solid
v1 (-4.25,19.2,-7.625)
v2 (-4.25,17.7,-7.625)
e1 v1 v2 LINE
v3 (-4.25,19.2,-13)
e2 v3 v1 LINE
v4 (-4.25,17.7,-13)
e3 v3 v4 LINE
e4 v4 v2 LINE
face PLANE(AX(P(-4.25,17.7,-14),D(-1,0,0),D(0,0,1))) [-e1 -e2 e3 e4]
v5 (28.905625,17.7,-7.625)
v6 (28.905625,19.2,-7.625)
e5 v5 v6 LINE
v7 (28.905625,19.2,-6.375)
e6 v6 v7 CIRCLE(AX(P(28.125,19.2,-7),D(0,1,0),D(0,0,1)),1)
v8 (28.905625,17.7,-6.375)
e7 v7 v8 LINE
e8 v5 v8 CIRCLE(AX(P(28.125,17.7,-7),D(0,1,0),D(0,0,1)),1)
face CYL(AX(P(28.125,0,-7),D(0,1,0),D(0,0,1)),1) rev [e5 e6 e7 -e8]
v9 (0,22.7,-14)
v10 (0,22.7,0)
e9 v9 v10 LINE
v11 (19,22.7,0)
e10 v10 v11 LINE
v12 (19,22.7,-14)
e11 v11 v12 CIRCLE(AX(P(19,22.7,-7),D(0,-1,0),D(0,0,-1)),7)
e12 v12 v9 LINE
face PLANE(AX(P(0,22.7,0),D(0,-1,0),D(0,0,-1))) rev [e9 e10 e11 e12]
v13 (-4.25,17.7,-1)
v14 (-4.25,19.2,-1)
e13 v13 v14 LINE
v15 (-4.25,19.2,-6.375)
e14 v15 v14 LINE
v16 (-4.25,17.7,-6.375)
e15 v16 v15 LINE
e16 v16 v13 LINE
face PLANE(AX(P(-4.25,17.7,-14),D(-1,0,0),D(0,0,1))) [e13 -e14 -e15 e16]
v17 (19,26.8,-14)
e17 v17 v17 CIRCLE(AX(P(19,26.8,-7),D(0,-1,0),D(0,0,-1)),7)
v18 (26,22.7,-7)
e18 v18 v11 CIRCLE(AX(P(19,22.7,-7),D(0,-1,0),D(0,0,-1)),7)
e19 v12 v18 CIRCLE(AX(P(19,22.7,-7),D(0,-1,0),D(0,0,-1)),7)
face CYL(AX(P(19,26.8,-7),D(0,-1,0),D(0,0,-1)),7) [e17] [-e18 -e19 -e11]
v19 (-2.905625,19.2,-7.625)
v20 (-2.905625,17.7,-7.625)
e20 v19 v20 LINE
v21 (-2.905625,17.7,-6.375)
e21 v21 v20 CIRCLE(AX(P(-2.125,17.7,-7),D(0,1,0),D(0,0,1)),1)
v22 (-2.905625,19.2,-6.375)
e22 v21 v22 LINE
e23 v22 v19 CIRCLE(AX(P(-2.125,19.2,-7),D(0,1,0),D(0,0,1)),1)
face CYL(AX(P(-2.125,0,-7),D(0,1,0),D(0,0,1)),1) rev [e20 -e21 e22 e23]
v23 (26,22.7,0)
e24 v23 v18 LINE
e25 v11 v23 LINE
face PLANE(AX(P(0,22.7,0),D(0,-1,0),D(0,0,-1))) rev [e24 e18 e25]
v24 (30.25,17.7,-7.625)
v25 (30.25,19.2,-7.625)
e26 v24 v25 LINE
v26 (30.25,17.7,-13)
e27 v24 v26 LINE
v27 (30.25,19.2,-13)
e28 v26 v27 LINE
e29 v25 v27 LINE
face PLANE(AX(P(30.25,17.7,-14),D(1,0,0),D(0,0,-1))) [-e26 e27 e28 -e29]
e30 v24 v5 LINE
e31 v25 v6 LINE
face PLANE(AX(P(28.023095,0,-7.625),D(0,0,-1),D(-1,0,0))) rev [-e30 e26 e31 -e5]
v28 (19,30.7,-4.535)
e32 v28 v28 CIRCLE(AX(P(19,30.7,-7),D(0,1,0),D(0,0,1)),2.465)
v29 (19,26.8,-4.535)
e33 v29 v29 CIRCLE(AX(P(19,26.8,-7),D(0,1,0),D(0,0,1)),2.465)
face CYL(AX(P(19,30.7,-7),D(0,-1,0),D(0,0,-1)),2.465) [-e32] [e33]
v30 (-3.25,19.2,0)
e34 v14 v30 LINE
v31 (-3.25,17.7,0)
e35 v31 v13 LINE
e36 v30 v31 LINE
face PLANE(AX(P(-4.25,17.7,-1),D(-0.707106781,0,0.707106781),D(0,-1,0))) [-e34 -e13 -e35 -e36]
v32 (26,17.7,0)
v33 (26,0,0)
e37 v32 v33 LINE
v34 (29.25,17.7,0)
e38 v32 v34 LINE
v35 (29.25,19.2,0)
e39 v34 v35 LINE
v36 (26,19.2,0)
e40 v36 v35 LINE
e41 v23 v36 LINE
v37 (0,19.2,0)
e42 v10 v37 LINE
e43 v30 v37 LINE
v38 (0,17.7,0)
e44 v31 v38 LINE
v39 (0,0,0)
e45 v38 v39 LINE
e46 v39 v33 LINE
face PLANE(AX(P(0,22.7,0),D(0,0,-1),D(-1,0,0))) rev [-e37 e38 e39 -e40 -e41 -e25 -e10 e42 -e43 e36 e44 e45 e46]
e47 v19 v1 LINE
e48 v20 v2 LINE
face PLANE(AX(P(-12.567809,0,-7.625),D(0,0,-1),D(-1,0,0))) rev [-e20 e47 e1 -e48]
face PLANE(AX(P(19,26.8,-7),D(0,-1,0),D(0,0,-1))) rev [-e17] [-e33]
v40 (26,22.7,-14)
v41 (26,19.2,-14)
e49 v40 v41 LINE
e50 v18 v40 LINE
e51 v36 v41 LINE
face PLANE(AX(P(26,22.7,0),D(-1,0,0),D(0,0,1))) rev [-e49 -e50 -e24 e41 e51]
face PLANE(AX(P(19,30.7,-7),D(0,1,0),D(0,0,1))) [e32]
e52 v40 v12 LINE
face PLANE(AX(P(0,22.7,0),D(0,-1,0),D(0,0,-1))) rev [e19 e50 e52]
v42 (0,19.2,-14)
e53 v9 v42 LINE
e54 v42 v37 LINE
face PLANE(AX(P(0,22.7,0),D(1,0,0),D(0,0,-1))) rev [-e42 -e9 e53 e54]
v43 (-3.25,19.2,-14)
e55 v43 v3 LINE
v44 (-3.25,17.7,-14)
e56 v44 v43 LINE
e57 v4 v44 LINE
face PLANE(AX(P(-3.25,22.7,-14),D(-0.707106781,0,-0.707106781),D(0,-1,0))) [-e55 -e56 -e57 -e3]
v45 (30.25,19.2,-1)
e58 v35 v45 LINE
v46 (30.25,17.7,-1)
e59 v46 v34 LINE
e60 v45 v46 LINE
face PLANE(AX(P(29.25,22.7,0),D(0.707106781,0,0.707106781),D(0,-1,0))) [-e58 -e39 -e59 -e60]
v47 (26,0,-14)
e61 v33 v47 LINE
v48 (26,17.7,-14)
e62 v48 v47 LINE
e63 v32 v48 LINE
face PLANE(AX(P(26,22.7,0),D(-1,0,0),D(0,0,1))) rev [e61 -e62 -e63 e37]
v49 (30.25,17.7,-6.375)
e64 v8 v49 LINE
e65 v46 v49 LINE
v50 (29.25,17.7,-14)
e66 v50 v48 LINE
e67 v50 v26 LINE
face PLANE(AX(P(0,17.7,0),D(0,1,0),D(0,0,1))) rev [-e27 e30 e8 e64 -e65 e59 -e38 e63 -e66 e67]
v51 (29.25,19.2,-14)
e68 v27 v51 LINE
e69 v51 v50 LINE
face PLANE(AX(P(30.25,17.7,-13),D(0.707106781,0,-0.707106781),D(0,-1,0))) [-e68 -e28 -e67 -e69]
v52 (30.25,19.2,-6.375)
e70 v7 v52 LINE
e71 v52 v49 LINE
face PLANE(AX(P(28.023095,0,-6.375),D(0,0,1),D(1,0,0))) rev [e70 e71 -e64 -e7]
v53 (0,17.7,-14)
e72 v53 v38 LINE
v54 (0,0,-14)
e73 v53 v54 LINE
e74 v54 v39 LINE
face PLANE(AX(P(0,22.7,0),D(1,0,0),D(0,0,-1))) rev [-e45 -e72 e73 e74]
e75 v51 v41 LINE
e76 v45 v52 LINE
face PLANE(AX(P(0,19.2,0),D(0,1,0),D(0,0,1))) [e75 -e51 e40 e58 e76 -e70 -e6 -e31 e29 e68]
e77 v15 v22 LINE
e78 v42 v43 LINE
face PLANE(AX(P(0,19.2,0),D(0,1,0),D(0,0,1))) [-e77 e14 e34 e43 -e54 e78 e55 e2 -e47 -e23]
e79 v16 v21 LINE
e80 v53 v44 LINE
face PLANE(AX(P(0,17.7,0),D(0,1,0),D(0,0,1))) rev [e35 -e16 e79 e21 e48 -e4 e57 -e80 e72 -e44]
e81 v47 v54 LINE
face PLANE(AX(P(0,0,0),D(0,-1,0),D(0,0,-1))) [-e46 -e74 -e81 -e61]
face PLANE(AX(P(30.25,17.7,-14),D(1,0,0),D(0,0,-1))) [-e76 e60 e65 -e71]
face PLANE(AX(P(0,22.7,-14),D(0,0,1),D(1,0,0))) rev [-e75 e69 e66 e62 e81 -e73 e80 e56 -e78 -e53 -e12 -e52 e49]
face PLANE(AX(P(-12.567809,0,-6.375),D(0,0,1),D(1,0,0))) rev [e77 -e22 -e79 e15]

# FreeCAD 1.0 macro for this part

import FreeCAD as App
import Part
import Sketcher
from FreeCAD import Vector
Q = App.Units.Quantity


def edges_at(feature, points):
    """Names of the edges that pass closest to the given points."""
    edges = feature.Shape.Edges
    near = lambda p: min(range(len(edges)), key=lambda i: edges[i].distToShape(Part.Vertex(*p))[0])
    return sorted({f"Edge{near(p) + 1}" for p in points})


def add_polygon(sketch, points):
    """Adds a closed chain of lines whose ends are joined by coincident constraints."""
    first, n = sketch.GeometryCount, len(points)
    for a, b in zip(points, points[1:] + points[:1]):
        sketch.addGeometry(Part.LineSegment(App.Vector(*a, 0), App.Vector(*b, 0)), False)
    for i in range(n):
        sketch.addConstraint(Sketcher.Constraint("Coincident", first + i, 2, first + (i + 1) % n, 1))

doc = App.newDocument("Part")
body = doc.addObject("PartDesign::Body", "Body")

sketch1 = body.newObject("Sketcher::SketchObject", "Sketch")
sketch1.AttachmentSupport = (doc.getObject("XZ_Plane"), [""])
sketch1.MapMode = "FlatFace"
add_polygon(sketch1, [(0, -14), (0, 0), (26, 0), (26, -14)])
sketch1.addConstraint([
    Sketcher.Constraint("Vertical", 0),
    Sketcher.Constraint("Horizontal", 1),
    Sketcher.Constraint("Vertical", 2),
    Sketcher.Constraint("Horizontal", 3),
    Sketcher.Constraint("Coincident", 0, 2, -1, 1),
    Sketcher.Constraint("DistanceX", 1, 1, 1, 2, Q("26 mm")),
    Sketcher.Constraint("DistanceY", 0, 1, 0, 2, Q("14 mm")),
])
pad1 = body.newObject("PartDesign::Pad", "Pad")
pad1.Profile = sketch1
pad1.Length = 22.7
pad1.Reversed = True

sketch2 = body.newObject("Sketcher::SketchObject", "Sketch001")
sketch2.AttachmentSupport = (doc.getObject("XZ_Plane"), [""])
sketch2.MapMode = "FlatFace"
sketch2.AttachmentOffset = App.Placement(Vector(0, 0, -19.2), App.Rotation())
add_polygon(sketch2, [(-4, -14), (-4, 0), (30, 0), (30, -14)])
sketch2.addConstraint([
    Sketcher.Constraint("Vertical", 0),
    Sketcher.Constraint("Horizontal", 1),
    Sketcher.Constraint("Vertical", 2),
    Sketcher.Constraint("Horizontal", 3),
    Sketcher.Constraint("PointOnObject", 0, 2, -1),
    Sketcher.Constraint("DistanceY", 0, 1, 0, 2, Q("14 mm")),
    Sketcher.Constraint("DistanceX", 1, 1, 1, 2, Q("34.5 mm")),
    Sketcher.Constraint("DistanceX", 0, 2, -1, 1, Q("4.25 mm")),
])
pad2 = body.newObject("PartDesign::Pad", "Pad001")
pad2.Profile = sketch2
pad2.Length = 1.5
doc.recompute()

chamfer = body.newObject("PartDesign::Chamfer", "Chamfer")
chamfer.Base = (pad2, edges_at(pad2, [
    (-4.25, 18.45, -14),
    (30.25, 18.45, 0),
    (-4.25, 18.45, 0),
    (30.25, 18.45, -14),
]))
chamfer.Size = 1

sketch3 = body.newObject("Sketcher::SketchObject", "Sketch002")
sketch3.AttachmentSupport = (doc.getObject("XZ_Plane"), [""])
sketch3.MapMode = "FlatFace"
sketch3.addGeometry(Part.Circle(Vector(19, -7, 0), Vector(0, 0, 1), 7), False)
sketch3.addConstraint([
    Sketcher.Constraint("Diameter", 0, Q("14 mm")),
    Sketcher.Constraint("DistanceX", -1, 1, 0, 3, Q("19 mm")),
    Sketcher.Constraint("DistanceY", 0, 3, -1, 1, Q("7 mm")),
])
pad3 = body.newObject("PartDesign::Pad", "Pad002")
pad3.Profile = sketch3
pad3.Length = 26.8
pad3.Reversed = True

sketch4 = body.newObject("Sketcher::SketchObject", "Sketch003")
sketch4.AttachmentSupport = (doc.getObject("XZ_Plane"), [""])
sketch4.MapMode = "FlatFace"
sketch4.AttachmentOffset = App.Placement(Vector(0, 0, -26.8), App.Rotation())
sketch4.addGeometry(Part.Circle(Vector(19, -7, 0), Vector(0, 0, 1), 2.5), False)
sketch4.addConstraint([
    Sketcher.Constraint("Diameter", 0, Q("4.93 mm")),
    Sketcher.Constraint("DistanceX", -1, 1, 0, 3, Q("19 mm")),
    Sketcher.Constraint("DistanceY", 0, 3, -1, 1, Q("7 mm")),
])
pad4 = body.newObject("PartDesign::Pad", "Pad003")
pad4.Profile = sketch4
pad4.Length = 3.9
pad4.Reversed = True

sketch5 = body.newObject("Sketcher::SketchObject", "Sketch004")
sketch5.AttachmentSupport = (doc.getObject("XZ_Plane"), [""])
sketch5.MapMode = "FlatFace"
sketch5.AttachmentOffset = App.Placement(Vector(0, 0, -19.2), App.Rotation())
sketch5.addGeometry([
    Part.Circle(Vector(28.1, -7, 0), Vector(0, 0, 1), 1),
    Part.Circle(Vector(-2.1, -7, 0), Vector(0, 0, 1), 1),
], False)
sketch5.addConstraint([
    Sketcher.Constraint("Equal", 0, 1),
    Sketcher.Constraint("Horizontal", 0, 3, 1, 3),
    Sketcher.Constraint("Diameter", 0, Q("2 mm")),
    Sketcher.Constraint("DistanceY", 0, 3, -1, 1, Q("7 mm")),
    Sketcher.Constraint("DistanceX", 1, 3, 0, 3, Q("30.25 mm")),
    Sketcher.Constraint("DistanceX", -1, 1, 0, 3, Q("28.125 mm")),
])
pocket1 = body.newObject("PartDesign::Pocket", "Pocket")
pocket1.Profile = sketch5
pocket1.Type = "ThroughAll"
pocket1.Reversed = True

sketch6 = body.newObject("Sketcher::SketchObject", "Sketch005")
sketch6.AttachmentSupport = (doc.getObject("XZ_Plane"), [""])
sketch6.MapMode = "FlatFace"
sketch6.AttachmentOffset = App.Placement(Vector(0, 0, -19.2), App.Rotation())
add_polygon(sketch6, [(28, -7.6), (28, -6.4), (32.8, -6.4), (32.8, -7.6)])
add_polygon(sketch6, [(-12.6, -7.6), (-12.6, -6.4), (-2, -6.4), (-2, -7.6)])
sketch6.addConstraint([
    Sketcher.Constraint("Vertical", 0),
    Sketcher.Constraint("Horizontal", 1),
    Sketcher.Constraint("Vertical", 2),
    Sketcher.Constraint("Horizontal", 3),
    Sketcher.Constraint("Vertical", 4),
    Sketcher.Constraint("Horizontal", 5),
    Sketcher.Constraint("Vertical", 6),
    Sketcher.Constraint("Horizontal", 7),
    Sketcher.Constraint("Horizontal", 1, 2, 4, 2),
    Sketcher.Constraint("Horizontal", 3, 2, 6, 2),
    Sketcher.Constraint("DistanceY", 0, 1, 0, 2, Q("1.25 mm")),
    Sketcher.Constraint("DistanceY", 0, 2, -1, 1, Q("6.375 mm")),
    Sketcher.Constraint("DistanceX", 1, 1, 1, 2, Q("4.817382 mm")),
    Sketcher.Constraint("DistanceX", 5, 1, 5, 2, Q("10.544714 mm")),
    Sketcher.Constraint("DistanceX", 4, 2, -1, 1, Q("12.567809 mm")),
    Sketcher.Constraint("DistanceX", 5, 2, 0, 2, Q("30.04619 mm")),
])
pocket2 = body.newObject("PartDesign::Pocket", "Pocket001")
pocket2.Profile = sketch6
pocket2.Type = "ThroughAll"
pocket2.Reversed = True

doc.recompute()
